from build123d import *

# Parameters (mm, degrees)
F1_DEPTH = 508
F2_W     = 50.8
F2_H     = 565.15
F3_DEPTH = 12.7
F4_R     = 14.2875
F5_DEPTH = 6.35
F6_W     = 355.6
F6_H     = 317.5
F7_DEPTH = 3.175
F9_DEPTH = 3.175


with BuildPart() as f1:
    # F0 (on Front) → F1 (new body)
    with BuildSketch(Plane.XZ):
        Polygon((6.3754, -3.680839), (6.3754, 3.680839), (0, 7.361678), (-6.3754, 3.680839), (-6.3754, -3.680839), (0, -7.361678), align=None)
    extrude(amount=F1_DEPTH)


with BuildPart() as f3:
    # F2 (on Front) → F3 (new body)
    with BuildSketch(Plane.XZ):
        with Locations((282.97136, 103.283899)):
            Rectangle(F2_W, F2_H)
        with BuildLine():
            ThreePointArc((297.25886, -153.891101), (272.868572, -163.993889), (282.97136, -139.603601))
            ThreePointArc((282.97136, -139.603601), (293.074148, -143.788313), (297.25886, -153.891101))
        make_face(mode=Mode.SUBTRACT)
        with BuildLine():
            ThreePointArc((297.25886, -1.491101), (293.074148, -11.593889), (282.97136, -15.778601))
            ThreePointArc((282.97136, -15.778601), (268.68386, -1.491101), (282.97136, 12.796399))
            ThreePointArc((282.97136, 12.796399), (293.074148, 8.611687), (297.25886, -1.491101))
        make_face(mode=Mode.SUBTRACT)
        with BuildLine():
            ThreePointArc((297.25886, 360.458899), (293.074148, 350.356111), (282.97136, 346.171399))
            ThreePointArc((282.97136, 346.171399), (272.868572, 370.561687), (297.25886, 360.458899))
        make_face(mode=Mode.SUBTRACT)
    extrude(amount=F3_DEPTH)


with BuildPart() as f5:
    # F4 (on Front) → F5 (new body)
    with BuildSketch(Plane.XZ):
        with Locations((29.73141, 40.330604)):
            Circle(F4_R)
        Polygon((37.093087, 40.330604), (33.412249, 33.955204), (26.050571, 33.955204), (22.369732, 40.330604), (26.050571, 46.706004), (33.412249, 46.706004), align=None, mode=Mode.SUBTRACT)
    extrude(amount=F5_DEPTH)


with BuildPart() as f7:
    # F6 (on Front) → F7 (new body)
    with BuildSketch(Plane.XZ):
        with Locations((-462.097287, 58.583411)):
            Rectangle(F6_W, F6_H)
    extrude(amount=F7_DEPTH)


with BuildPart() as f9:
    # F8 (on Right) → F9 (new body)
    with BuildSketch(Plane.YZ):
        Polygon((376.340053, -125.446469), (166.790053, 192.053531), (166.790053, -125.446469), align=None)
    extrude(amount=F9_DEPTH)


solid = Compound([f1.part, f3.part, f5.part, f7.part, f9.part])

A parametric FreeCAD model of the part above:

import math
import FreeCAD as App
import Part
import Sketcher
Q = App.Units.Quantity

doc = App.newDocument("Part")
params = doc.addObject("Spreadsheet::Sheet", "Params")
for row, (alias, value) in enumerate([
    ("pad1_length", "20 in"),
    ("sketch2_width", "2 in"),
    ("sketch2_radius", "0.5625 in"),
    ("sketch2_height", "22.25 in"),
    ("pad2_length", "0.5 in"),
    ("sketch3_diameter", "1.125 in"),
    ("pad3_length", "0.25 in"),
    ("sketch4_width", "14 in"),
    ("sketch4_height", "12.5 in"),
    ("pad4_length", "0.125 in"),
    ("sketch5_height", "12.5 in"),
    ("sketch5_width", "8.25 in"),
    ("pad5_length", "0.125 in"),
], start=1):
    params.set(f"A{row}", alias)
    params.set(f"B{row}", "=" + value)
    params.setAlias(f"B{row}", alias)

body = doc.addObject("PartDesign::Body", "Body")

# Sketch on XZ plane
sketch1 = body.newObject("Sketcher::SketchObject", "Sketch")
sketch1.AttachmentSupport = (doc.getObject("XZ_Plane"), [""])
sketch1.MapMode = "FlatFace"
sketch1.addGeometry(Part.LineSegment(App.Vector(6.3754, -3.680839, 0), App.Vector(6.3754, 3.680839, 0)), False)
sketch1.addGeometry(Part.LineSegment(App.Vector(6.3754, 3.680839, 0), App.Vector(0, 7.361678, 0)), False)
sketch1.addGeometry(Part.LineSegment(App.Vector(0, 7.361678, 0), App.Vector(-6.3754, 3.680839, 0)), False)
sketch1.addGeometry(Part.LineSegment(App.Vector(-6.3754, 3.680839, 0), App.Vector(-6.3754, -3.680839, 0)), False)
sketch1.addGeometry(Part.LineSegment(App.Vector(-6.3754, -3.680839, 0), App.Vector(0, -7.361678, 0)), False)
sketch1.addGeometry(Part.LineSegment(App.Vector(0, -7.361678, 0), App.Vector(6.3754, -3.680839, 0)), False)
sketch1.addConstraint(Sketcher.Constraint("Coincident", 0, 2, 1, 1))
sketch1.addConstraint(Sketcher.Constraint("Coincident", 1, 2, 2, 1))
sketch1.addConstraint(Sketcher.Constraint("Coincident", 2, 2, 3, 1))
sketch1.addConstraint(Sketcher.Constraint("Coincident", 3, 2, 4, 1))
sketch1.addConstraint(Sketcher.Constraint("Coincident", 4, 2, 5, 1))
sketch1.addConstraint(Sketcher.Constraint("Coincident", 5, 2, 0, 1))
sketch1.addConstraint(Sketcher.Constraint("Vertical", 0))
sketch1.addConstraint(Sketcher.Constraint("Vertical", 3))
sketch1.addConstraint(Sketcher.Constraint("Symmetric", 0, 2, 3, 2, -1, 1))
sketch1.addConstraint(Sketcher.Constraint("Symmetric", 1, 2, 4, 2, -1, 1))
sketch1.addConstraint(Sketcher.Constraint("PointOnObject", 1, 2, -2))
sketch1.addConstraint(Sketcher.Constraint("Parallel", 2, 5))
sketch1.addConstraint(Sketcher.Constraint("Horizontal", 0, 2, 2, 2))
sketch1.addConstraint(Sketcher.Constraint("Angle", 1, Q("149.999999 deg")))
sketch1.addConstraint(Sketcher.Constraint("DistanceX", -1, 1, 0, 2, Q("0.251 in")))
sketch1.addConstraint(Sketcher.Constraint("DistanceY", 0, 1, 0, 2, 7.361678))
pad1 = body.newObject("PartDesign::Pad", "Pad")
pad1.Profile = sketch1
pad1.setExpression("Length", "Params.pad1_length")
body2 = doc.addObject("PartDesign::Body", "Body001")

# Sketch on XZ plane
sketch2 = body2.newObject("Sketcher::SketchObject", "Sketch001")
sketch2.AttachmentSupport = (doc.getObject("XZ_Plane001"), [""])
sketch2.MapMode = "FlatFace"
sketch2.addGeometry(Part.LineSegment(App.Vector(257.57136, 385.858899, 0), App.Vector(257.57136, -179.291101, 0)), False)
sketch2.addGeometry(Part.LineSegment(App.Vector(257.57136, -179.291101, 0), App.Vector(308.37136, -179.291101, 0)), False)
sketch2.addGeometry(Part.LineSegment(App.Vector(308.37136, -179.291101, 0), App.Vector(308.37136, 385.858899, 0)), False)
sketch2.addGeometry(Part.LineSegment(App.Vector(308.37136, 385.858899, 0), App.Vector(257.57136, 385.858899, 0)), False)
sketch2.addGeometry(Part.ArcOfCircle(Part.Circle(App.Vector(282.97136, -1.491101, 0), App.Vector(0, 0, 1), 14.2875), math.radians(0.000002), math.radians(89.999998)), False)
sketch2.addGeometry(Part.ArcOfCircle(Part.Circle(App.Vector(282.97136, -1.491101, 0), App.Vector(0, 0, 1), 14.2875), math.radians(-89.999998), math.radians(-0.000002)), False)
sketch2.addGeometry(Part.ArcOfCircle(Part.Circle(App.Vector(282.97136, -1.491101, 0), App.Vector(0, 0, 1), 14.2875), math.radians(90), math.radians(270)), False)
sketch2.addGeometry(Part.ArcOfCircle(Part.Circle(App.Vector(282.97136, -153.891101, 0), App.Vector(0, 0, 1), 14.2875), math.radians(0.000002), math.radians(89.999998)), False)
sketch2.addGeometry(Part.ArcOfCircle(Part.Circle(App.Vector(282.97136, -153.891101, 0), App.Vector(0, 0, 1), 14.2875), math.radians(90), math.radians(360)), False)
sketch2.addGeometry(Part.ArcOfCircle(Part.Circle(App.Vector(282.97136, 360.458899, 0), App.Vector(0, 0, 1), 14.2875), math.radians(0), math.radians(270)), False)
sketch2.addGeometry(Part.ArcOfCircle(Part.Circle(App.Vector(282.97136, 360.458899, 0), App.Vector(0, 0, 1), 14.2875), math.radians(-89.999998), math.radians(-0.000002)), False)
sketch2.addConstraint(Sketcher.Constraint("Coincident", 0, 2, 1, 1))
sketch2.addConstraint(Sketcher.Constraint("Coincident", 1, 2, 2, 1))
sketch2.addConstraint(Sketcher.Constraint("Coincident", 2, 2, 3, 1))
sketch2.addConstraint(Sketcher.Constraint("Coincident", 3, 2, 0, 1))
sketch2.addConstraint(Sketcher.Constraint("Tangent", 4, 1, 5, 2))
sketch2.addConstraint(Sketcher.Constraint("Tangent", 5, 1, 6, 2))
sketch2.addConstraint(Sketcher.Constraint("Tangent", 6, 1, 4, 2))
sketch2.addConstraint(Sketcher.Constraint("Tangent", 7, 1, 8, 2))
sketch2.addConstraint(Sketcher.Constraint("Coincident", 8, 1, 7, 2))
sketch2.addConstraint(Sketcher.Constraint("Tangent", 9, 1, 10, 2))
sketch2.addConstraint(Sketcher.Constraint("Coincident", 10, 1, 9, 2))
sketch2.addConstraint(Sketcher.Constraint("Vertical", 0))
sketch2.addConstraint(Sketcher.Constraint("Horizontal", 1))
sketch2.addConstraint(Sketcher.Constraint("Vertical", 2))
sketch2.addConstraint(Sketcher.Constraint("Horizontal", 3))
sketch2.addConstraint(Sketcher.Constraint("Equal", 6, 7))
sketch2.addConstraint(Sketcher.Constraint("Equal", 8, 9))
sketch2.addConstraint(Sketcher.Constraint("Horizontal", 6, 3, 4, 1))
sketch2.addConstraint(Sketcher.Constraint("Horizontal", 8, 3, 7, 1))
sketch2.addConstraint(Sketcher.Constraint("Horizontal", 10, 3, 9, 1))
sketch2.addConstraint(Sketcher.Constraint("Vertical", 6, 3, 7, 3))
sketch2.addConstraint(Sketcher.Constraint("Vertical", 8, 3, 9, 3))
sketch2.addConstraint(Sketcher.Constraint("Vertical", 10, 3, 5, 1))
sketch2.addConstraint(Sketcher.Constraint("Vertical", 5, 1, 6, 1))
sketch2.addConstraint(Sketcher.Constraint("Vertical", 6, 1, 8, 1))
sketch2.addConstraint(Sketcher.Constraint("Vertical", 8, 1, 10, 1))
sketch2.addConstraint(Sketcher.Constraint("DistanceX", 1, 1, 1, 2, Q("2 in")))
sketch2.addConstraint(Sketcher.Constraint("Radius", 4, Q("0.5625 in")))
sketch2.addConstraint(Sketcher.Constraint("DistanceY", 7, 3, 4, 3, Q("6 in")))
sketch2.addConstraint(Sketcher.Constraint("DistanceX", 0, 2, 7, 3, Q("1 in")))
sketch2.addConstraint(Sketcher.Constraint("DistanceY", 0, 2, 7, 3, Q("1 in")))
sketch2.addConstraint(Sketcher.Constraint("DistanceY", 9, 3, 2, 2, Q("1 in")))
sketch2.addConstraint(Sketcher.Constraint("DistanceY", 0, 2, 0, 1, Q("22.25 in")))
sketch2.addConstraint(Sketcher.Constraint("DistanceY", 4, 3, -1, 1, 1.491101))
sketch2.addConstraint(Sketcher.Constraint("DistanceX", -1, 1, 4, 3, 282.97136))
sketch2.setExpression("Constraints[26]", "Params.sketch2_width")
sketch2.setExpression("Constraints[27]", "Params.sketch2_radius")
sketch2.setExpression("Constraints[32]", "Params.sketch2_height")
pad2 = body2.newObject("PartDesign::Pad", "Pad001")
pad2.Profile = sketch2
pad2.setExpression("Length", "Params.pad2_length")
body3 = doc.addObject("PartDesign::Body", "Body002")

# Sketch on XZ plane
sketch3 = body3.newObject("Sketcher::SketchObject", "Sketch002")
sketch3.AttachmentSupport = (doc.getObject("XZ_Plane002"), [""])
sketch3.MapMode = "FlatFace"
sketch3.addGeometry(Part.Circle(App.Vector(29.73141, 40.330604, 0), App.Vector(0, 0, 1), 14.2875), False)
sketch3.addGeometry(Part.LineSegment(App.Vector(33.412249, 46.706004, 0), App.Vector(37.093087, 40.330604, 0)), False)
sketch3.addGeometry(Part.LineSegment(App.Vector(37.093087, 40.330604, 0), App.Vector(33.412249, 33.955204, 0)), False)
sketch3.addGeometry(Part.LineSegment(App.Vector(33.412249, 33.955204, 0), App.Vector(26.050571, 33.955204, 0)), False)
sketch3.addGeometry(Part.LineSegment(App.Vector(26.050571, 33.955204, 0), App.Vector(22.369732, 40.330604, 0)), False)
sketch3.addGeometry(Part.LineSegment(App.Vector(22.369732, 40.330604, 0), App.Vector(26.050571, 46.706004, 0)), False)
sketch3.addGeometry(Part.LineSegment(App.Vector(26.050571, 46.706004, 0), App.Vector(33.412249, 46.706004, 0)), False)
sketch3.addConstraint(Sketcher.Constraint("Coincident", 1, 2, 2, 1))
sketch3.addConstraint(Sketcher.Constraint("Coincident", 2, 2, 3, 1))
sketch3.addConstraint(Sketcher.Constraint("Coincident", 3, 2, 4, 1))
sketch3.addConstraint(Sketcher.Constraint("Coincident", 4, 2, 5, 1))
sketch3.addConstraint(Sketcher.Constraint("Coincident", 5, 2, 6, 1))
sketch3.addConstraint(Sketcher.Constraint("Coincident", 6, 2, 1, 1))
sketch3.addConstraint(Sketcher.Constraint("Horizontal", 3))
sketch3.addConstraint(Sketcher.Constraint("Horizontal", 6))
sketch3.addConstraint(Sketcher.Constraint("Parallel", 1, 4))
sketch3.addConstraint(Sketcher.Constraint("Parallel", 2, 5))
sketch3.addConstraint(Sketcher.Constraint("Horizontal", 0, 3, 1, 2))
sketch3.addConstraint(Sketcher.Constraint("Horizontal", 1, 2, 4, 2))
sketch3.addConstraint(Sketcher.Constraint("Vertical", 3, 2, 5, 2))
sketch3.addConstraint(Sketcher.Constraint("Vertical", 2, 2, 6, 2))
sketch3.addConstraint(Sketcher.Constraint("Diameter", 0, Q("1.125 in")))
sketch3.addConstraint(Sketcher.Constraint("Angle", 1, Q("-60.000006 deg")))
sketch3.addConstraint(Sketcher.Constraint("DistanceY", 2, 2, 1, 2, Q("0.251 in")))
sketch3.addConstraint(Sketcher.Constraint("DistanceX", 3, 2, 3, 1, 7.361678))
sketch3.addConstraint(Sketcher.Constraint("DistanceX", -1, 1, 0, 3, 29.73141))
sketch3.addConstraint(Sketcher.Constraint("DistanceX", -1, 1, 2, 2, 33.412249))
sketch3.addConstraint(Sketcher.Constraint("DistanceY", -1, 1, 0, 3, 40.330604))
sketch3.setExpression("Constraints[14]", "Params.sketch3_diameter")
pad3 = body3.newObject("PartDesign::Pad", "Pad002")
pad3.Profile = sketch3
pad3.setExpression("Length", "Params.pad3_length")
body4 = doc.addObject("PartDesign::Body", "Body003")

# Sketch on XZ plane
sketch4 = body4.newObject("Sketcher::SketchObject", "Sketch003")
sketch4.AttachmentSupport = (doc.getObject("XZ_Plane003"), [""])
sketch4.MapMode = "FlatFace"
sketch4.addGeometry(Part.LineSegment(App.Vector(-639.897287, 217.333411, 0), App.Vector(-639.897287, -100.166589, 0)), False)
sketch4.addGeometry(Part.LineSegment(App.Vector(-639.897287, -100.166589, 0), App.Vector(-284.297287, -100.166589, 0)), False)
sketch4.addGeometry(Part.LineSegment(App.Vector(-284.297287, -100.166589, 0), App.Vector(-284.297287, 217.333411, 0)), False)
sketch4.addGeometry(Part.LineSegment(App.Vector(-284.297287, 217.333411, 0), App.Vector(-639.897287, 217.333411, 0)), False)
sketch4.addConstraint(Sketcher.Constraint("Coincident", 0, 2, 1, 1))
sketch4.addConstraint(Sketcher.Constraint("Coincident", 1, 2, 2, 1))
sketch4.addConstraint(Sketcher.Constraint("Coincident", 2, 2, 3, 1))
sketch4.addConstraint(Sketcher.Constraint("Coincident", 3, 2, 0, 1))
sketch4.addConstraint(Sketcher.Constraint("Vertical", 0))
sketch4.addConstraint(Sketcher.Constraint("Horizontal", 1))
sketch4.addConstraint(Sketcher.Constraint("Vertical", 2))
sketch4.addConstraint(Sketcher.Constraint("Horizontal", 3))
sketch4.addConstraint(Sketcher.Constraint("DistanceX", 1, 1, 1, 2, Q("14 in")))
sketch4.addConstraint(Sketcher.Constraint("DistanceY", 0, 2, 0, 1, Q("12.5 in")))
sketch4.addConstraint(Sketcher.Constraint("DistanceY", 0, 2, -1, 1, 100.166589))
sketch4.addConstraint(Sketcher.Constraint("DistanceX", 0, 2, -1, 1, 639.897287))
sketch4.setExpression("Constraints[8]", "Params.sketch4_width")
sketch4.setExpression("Constraints[9]", "Params.sketch4_height")
pad4 = body4.newObject("PartDesign::Pad", "Pad003")
pad4.Profile = sketch4
pad4.setExpression("Length", "Params.pad4_length")
body5 = doc.addObject("PartDesign::Body", "Body004")

# Sketch on YZ plane
sketch5 = body5.newObject("Sketcher::SketchObject", "Sketch004")
sketch5.AttachmentSupport = (doc.getObject("YZ_Plane004"), [""])
sketch5.MapMode = "FlatFace"
sketch5.addGeometry(Part.LineSegment(App.Vector(376.340053, -125.446469, 0), App.Vector(166.790053, 192.053531, 0)), False)
sketch5.addGeometry(Part.LineSegment(App.Vector(166.790053, 192.053531, 0), App.Vector(166.790053, -125.446469, 0)), False)
sketch5.addGeometry(Part.LineSegment(App.Vector(166.790053, -125.446469, 0), App.Vector(376.340053, -125.446469, 0)), False)
sketch5.addConstraint(Sketcher.Constraint("Coincident", 0, 2, 1, 1))
sketch5.addConstraint(Sketcher.Constraint("Coincident", 1, 2, 2, 1))
sketch5.addConstraint(Sketcher.Constraint("Coincident", 2, 2, 0, 1))
sketch5.addConstraint(Sketcher.Constraint("Vertical", 1))
sketch5.addConstraint(Sketcher.Constraint("Horizontal", 2))
sketch5.addConstraint(Sketcher.Constraint("DistanceY", 1, 2, 1, 1, Q("12.5 in")))
sketch5.addConstraint(Sketcher.Constraint("DistanceX", 2, 1, 2, 2, Q("8.25 in")))
sketch5.addConstraint(Sketcher.Constraint("DistanceY", -1, 1, 0, 2, 192.053531))
sketch5.addConstraint(Sketcher.Constraint("DistanceX", -1, 1, 0, 2, 166.790053))
sketch5.setExpression("Constraints[5]", "Params.sketch5_height")
sketch5.setExpression("Constraints[6]", "Params.sketch5_width")
pad5 = body5.newObject("PartDesign::Pad", "Pad004")
pad5.Profile = sketch5
pad5.setExpression("Length", "Params.pad5_length")

doc.recompute()
